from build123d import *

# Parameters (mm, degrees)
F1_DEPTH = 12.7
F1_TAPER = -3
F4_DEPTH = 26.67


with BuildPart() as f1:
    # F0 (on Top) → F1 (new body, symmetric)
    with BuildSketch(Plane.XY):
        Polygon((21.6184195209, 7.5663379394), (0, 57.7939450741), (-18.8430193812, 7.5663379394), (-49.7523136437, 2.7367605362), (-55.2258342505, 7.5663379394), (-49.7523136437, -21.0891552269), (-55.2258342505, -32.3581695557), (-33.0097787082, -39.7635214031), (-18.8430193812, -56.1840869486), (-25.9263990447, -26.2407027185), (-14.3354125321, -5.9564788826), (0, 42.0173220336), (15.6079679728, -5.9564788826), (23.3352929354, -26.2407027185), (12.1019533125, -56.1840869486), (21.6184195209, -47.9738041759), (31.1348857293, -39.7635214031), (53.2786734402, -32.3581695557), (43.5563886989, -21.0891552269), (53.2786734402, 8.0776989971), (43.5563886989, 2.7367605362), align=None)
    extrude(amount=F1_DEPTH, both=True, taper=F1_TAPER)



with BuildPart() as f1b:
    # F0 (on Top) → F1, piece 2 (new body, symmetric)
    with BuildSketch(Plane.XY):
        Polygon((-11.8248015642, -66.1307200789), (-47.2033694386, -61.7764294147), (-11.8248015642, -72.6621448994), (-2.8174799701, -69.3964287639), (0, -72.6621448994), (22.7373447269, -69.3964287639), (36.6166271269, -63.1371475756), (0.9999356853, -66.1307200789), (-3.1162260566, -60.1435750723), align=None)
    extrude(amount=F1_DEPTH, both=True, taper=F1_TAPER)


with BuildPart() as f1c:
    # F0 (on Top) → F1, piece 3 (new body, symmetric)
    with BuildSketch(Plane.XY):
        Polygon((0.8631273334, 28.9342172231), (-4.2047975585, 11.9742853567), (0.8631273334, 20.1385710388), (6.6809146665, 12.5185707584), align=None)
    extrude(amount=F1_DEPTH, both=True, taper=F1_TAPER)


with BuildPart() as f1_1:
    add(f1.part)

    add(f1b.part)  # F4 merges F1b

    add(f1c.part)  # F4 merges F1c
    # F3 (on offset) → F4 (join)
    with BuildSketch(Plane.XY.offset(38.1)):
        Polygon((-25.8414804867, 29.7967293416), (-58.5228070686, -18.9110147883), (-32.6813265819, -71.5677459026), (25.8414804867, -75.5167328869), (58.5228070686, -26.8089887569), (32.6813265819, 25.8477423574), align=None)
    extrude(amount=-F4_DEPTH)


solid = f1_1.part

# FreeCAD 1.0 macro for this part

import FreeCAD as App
import Part
import Sketcher
from FreeCAD import Vector
Q = App.Units.Quantity


def add_polygon(sketch, points):
    """Adds a closed chain of lines whose ends are joined by coincident constraints."""
    first, n = sketch.GeometryCount, len(points)
    for a, b in zip(points, points[1:] + points[:1]):
        sketch.addGeometry(Part.LineSegment(App.Vector(*a, 0), App.Vector(*b, 0)), False)
    for i in range(n):
        sketch.addConstraint(Sketcher.Constraint("Coincident", first + i, 2, first + (i + 1) % n, 1))

doc = App.newDocument("Part")
body = doc.addObject("PartDesign::Body", "Body")

# Sketch on XY plane
sketch1 = body.newObject("Sketcher::SketchObject", "Sketch")
sketch1.AttachmentSupport = (doc.getObject("XY_Plane"), [""])
sketch1.MapMode = "FlatFace"
add_polygon(sketch1, [(22, 8), (0, 58), (-19, 8), (-50, 3), (-55, 8), (-50, -21), (-55, -32), (-33, -40), (-19, -56), (-26, -26), (-14, -6), (0, 42), (16, -6), (23, -26), (12, -56), (22, -48), (31, -40), (53, -32), (44, -21), (53, 8), (44, 3)])  # lines 0-20
sketch1.addConstraint([
    Sketcher.Constraint("PointOnObject", 0, 2, -2),
    Sketcher.Constraint("PointOnObject", 10, 2, -2),
    Sketcher.Constraint("Parallel", 1, 13),
    Sketcher.Constraint("Perpendicular", 7, 14),
    Sketcher.Constraint("Parallel", 14, 15),
    Sketcher.Constraint("Perpendicular", 15, 17),
    Sketcher.Constraint("Perpendicular", 6, 18),
    Sketcher.Constraint("Horizontal", 1, 2, 3, 2),
    Sketcher.Constraint("Horizontal", 9, 2, 11, 2),
    Sketcher.Constraint("Horizontal", 8, 2, 12, 2),
    Sketcher.Constraint("Horizontal", 7, 2, 13, 2),
    Sketcher.Constraint("Horizontal", 6, 2, 15, 2),
    Sketcher.Constraint("Horizontal", 5, 2, 16, 2),
    Sketcher.Constraint("Horizontal", 4, 2, 17, 2),
    Sketcher.Constraint("Horizontal", 2, 2, 19, 2),
    Sketcher.Constraint("Horizontal", 3, 2, 20, 2),
    Sketcher.Constraint("Vertical", 2, 2, 4, 2),
    Sketcher.Constraint("Vertical", 3, 2, 5, 2),
    Sketcher.Constraint("Vertical", 1, 2, 7, 2),
    Sketcher.Constraint("Vertical", 16, 2, 18, 2),
    Sketcher.Constraint("Vertical", 17, 2, 19, 2),
    Sketcher.Constraint("Vertical", 14, 2, 20, 2),
    Sketcher.Constraint("Equal", 14, 15),
    Sketcher.Constraint("Distance", 1, 53.6458),
    Sketcher.Constraint("Distance", 8, 30.769799),
    Sketcher.Constraint("DistanceX", 8, 2, -1, 1, 25.926399),
    Sketcher.Constraint("DistanceY", -1, 1, 18, 2, 8.077699),
    Sketcher.Constraint("DistanceY", 4, 2, 0, 2, 78.8831),
    Sketcher.Constraint("DistanceX", 2, 2, 9, 2, 35.416901),
    Sketcher.Constraint("DistanceY", 9, 2, 10, 2, 47.973801),
    Sketcher.Constraint("DistanceY", 14, 2, 12, 2, 21.733101),
    Sketcher.Constraint("DistanceY", 12, 2, 18, 2, 34.318402),
    Sketcher.Constraint("Distance", 2, 31.28433),
    Sketcher.Constraint("Distance", 4, 29.173562),
    Sketcher.Constraint("Distance", 6, 23.417779),
    Sketcher.Constraint("Distance", 7, 21.68714),
    Sketcher.Constraint("Distance", 12, 21.70625),
    Sketcher.Constraint("Distance", 16, 23.349231),
    Sketcher.Constraint("Distance", 17, 14.88333),
    Sketcher.Constraint("Distance", 19, 11.09272),
    Sketcher.Constraint("DistanceY", 9, 2, -1, 1, 5.956479),
    Sketcher.Constraint("DistanceX", -1, 1, 14, 2, 21.61842),
])
pad1 = body.newObject("PartDesign::Pad", "Pad")
pad1.Profile = sketch1
pad1.Length = Q("1 in")
pad1.Midplane = True
pad1.TaperAngle = 3
body2 = doc.addObject("PartDesign::Body", "Body001")

# Sketch on XY plane
sketch2 = body2.newObject("Sketcher::SketchObject", "Sketch001")
sketch2.AttachmentSupport = (doc.getObject("XY_Plane001"), [""])
sketch2.MapMode = "FlatFace"
add_polygon(sketch2, [(-11.8, -66.1), (-47.2, -61.8), (-11.8, -72.7), (-2.8, -69.4), (0, -72.7), (22.7, -69.4), (36.6, -63.1), (1, -66.1), (-3.1, -60.1)])  # lines 0-8
sketch2.addConstraint([
    Sketcher.Constraint("PointOnObject", 3, 2, -2),
    Sketcher.Constraint("Perpendicular", 7, 8),
    Sketcher.Constraint("Horizontal", 1, 2, 3, 2),
    Sketcher.Constraint("Horizontal", 2, 2, 4, 2),
    Sketcher.Constraint("Horizontal", 6, 2, 8, 2),
    Sketcher.Constraint("Vertical", 1, 2, 8, 2),
    Sketcher.Constraint("DistanceY", 2, 2, 0, 2, Q("0.3 in")),
    Sketcher.Constraint("DistanceX", 0, 2, 5, 2, Q("3.2999999 in")),
    Sketcher.Constraint("DistanceY", 3, 2, 5, 2, Q("0.3749999 in")),
    Sketcher.Constraint("DistanceX", 1, 2, -1, 1, 11.824802),
    Sketcher.Constraint("Distance", 2, 9.581062),
    Sketcher.Constraint("Distance", 3, 4.313131),
    Sketcher.Constraint("Distance", 4, 22.970671),
    Sketcher.Constraint("Distance", 5, 15.225409),
    Sketcher.Constraint("Distance", 8, 10.568122),
    Sketcher.Constraint("DistanceY", 0, 2, -1, 1, 61.776429),
    Sketcher.Constraint("DistanceY", 6, 2, -1, 1, 66.13072),
    Sketcher.Constraint("DistanceX", 6, 2, 4, 2, 21.737409),
])
pad2 = body2.newObject("PartDesign::Pad", "Pad001")
pad2.Profile = sketch2
pad2.Length = Q("1 in")
pad2.Midplane = True
pad2.TaperAngle = 3
body3 = doc.addObject("PartDesign::Body", "Body002")

# Sketch on XY plane
sketch3 = body3.newObject("Sketcher::SketchObject", "Sketch002")
sketch3.AttachmentSupport = (doc.getObject("XY_Plane002"), [""])
sketch3.MapMode = "FlatFace"
add_polygon(sketch3, [(1, 29), (-4, 12), (1, 20), (7, 13)])  # lines 0-3
sketch3.addConstraint([
    Sketcher.Constraint("Vertical", 1, 2, 3, 2),
    Sketcher.Constraint("DistanceY", 2, 2, 1, 2, Q("0.3 in")),
    Sketcher.Constraint("Distance", 1, 9.60934),
    Sketcher.Constraint("DistanceY", -1, 1, 1, 2, 20.138571),
    Sketcher.Constraint("DistanceY", 0, 2, 3, 2, 16.959932),
    Sketcher.Constraint("Distance", 0, 17.700936),
    Sketcher.Constraint("Distance", 2, 9.587025),
    Sketcher.Constraint("DistanceX", 0, 2, -1, 1, 4.204798),
])
pad3 = body3.newObject("PartDesign::Pad", "Pad002")
pad3.Profile = sketch3
pad3.Length = Q("1 in")
pad3.Midplane = True
pad3.TaperAngle = 3
body.AllowCompound = True
doc.recompute()

boolean = body.newObject("PartDesign::Boolean", "Boolean")
boolean.Type = "Fuse"
boolean.addObjects([body2])
doc.recompute()

boolean2 = body.newObject("PartDesign::Boolean", "Boolean001")
boolean2.Type = "Fuse"
boolean2.addObjects([body3])

# Sketch on XY plane
sketch4 = body.newObject("Sketcher::SketchObject", "Sketch003")
sketch4.AttachmentSupport = (doc.getObject("XY_Plane"), [""])
sketch4.MapMode = "FlatFace"
sketch4.AttachmentOffset = App.Placement(Vector(0, 0, 1.5 * 25.4), App.Rotation())
add_polygon(sketch4, [(-26, 30), (-59, -19), (-33, -72), (26, -76), (59, -27), (33, 26)])  # lines 0-5
sketch4.addConstraint([
    Sketcher.Constraint("Parallel", 0, 3),
    Sketcher.Constraint("Parallel", 1, 4),
    Sketcher.Constraint("Parallel", 2, 5),
    Sketcher.Constraint("Equal", 0, 1),
    Sketcher.Constraint("Equal", 1, 2),
    Sketcher.Constraint("Equal", 2, 3),
    Sketcher.Constraint("Distance", 0, 58.65589),
    Sketcher.Constraint("DistanceX", -1, 1, 2, 2, 25.84148),
    Sketcher.Constraint("DistanceY", 3, 2, -1, 1, 26.808989),
    Sketcher.Constraint("DistanceX", 5, 2, -1, 1, 25.84148),
    Sketcher.Constraint("DistanceY", -1, 1, 5, 2, 29.796729),
    Sketcher.Constraint("DistanceX", 0, 2, 1, 2, 25.84148),
])
pad4 = body.newObject("PartDesign::Pad", "Pad003")
pad4.Profile = sketch4
pad4.Length = Q("1.05 in")
pad4.Reversed = True

doc.recompute()
